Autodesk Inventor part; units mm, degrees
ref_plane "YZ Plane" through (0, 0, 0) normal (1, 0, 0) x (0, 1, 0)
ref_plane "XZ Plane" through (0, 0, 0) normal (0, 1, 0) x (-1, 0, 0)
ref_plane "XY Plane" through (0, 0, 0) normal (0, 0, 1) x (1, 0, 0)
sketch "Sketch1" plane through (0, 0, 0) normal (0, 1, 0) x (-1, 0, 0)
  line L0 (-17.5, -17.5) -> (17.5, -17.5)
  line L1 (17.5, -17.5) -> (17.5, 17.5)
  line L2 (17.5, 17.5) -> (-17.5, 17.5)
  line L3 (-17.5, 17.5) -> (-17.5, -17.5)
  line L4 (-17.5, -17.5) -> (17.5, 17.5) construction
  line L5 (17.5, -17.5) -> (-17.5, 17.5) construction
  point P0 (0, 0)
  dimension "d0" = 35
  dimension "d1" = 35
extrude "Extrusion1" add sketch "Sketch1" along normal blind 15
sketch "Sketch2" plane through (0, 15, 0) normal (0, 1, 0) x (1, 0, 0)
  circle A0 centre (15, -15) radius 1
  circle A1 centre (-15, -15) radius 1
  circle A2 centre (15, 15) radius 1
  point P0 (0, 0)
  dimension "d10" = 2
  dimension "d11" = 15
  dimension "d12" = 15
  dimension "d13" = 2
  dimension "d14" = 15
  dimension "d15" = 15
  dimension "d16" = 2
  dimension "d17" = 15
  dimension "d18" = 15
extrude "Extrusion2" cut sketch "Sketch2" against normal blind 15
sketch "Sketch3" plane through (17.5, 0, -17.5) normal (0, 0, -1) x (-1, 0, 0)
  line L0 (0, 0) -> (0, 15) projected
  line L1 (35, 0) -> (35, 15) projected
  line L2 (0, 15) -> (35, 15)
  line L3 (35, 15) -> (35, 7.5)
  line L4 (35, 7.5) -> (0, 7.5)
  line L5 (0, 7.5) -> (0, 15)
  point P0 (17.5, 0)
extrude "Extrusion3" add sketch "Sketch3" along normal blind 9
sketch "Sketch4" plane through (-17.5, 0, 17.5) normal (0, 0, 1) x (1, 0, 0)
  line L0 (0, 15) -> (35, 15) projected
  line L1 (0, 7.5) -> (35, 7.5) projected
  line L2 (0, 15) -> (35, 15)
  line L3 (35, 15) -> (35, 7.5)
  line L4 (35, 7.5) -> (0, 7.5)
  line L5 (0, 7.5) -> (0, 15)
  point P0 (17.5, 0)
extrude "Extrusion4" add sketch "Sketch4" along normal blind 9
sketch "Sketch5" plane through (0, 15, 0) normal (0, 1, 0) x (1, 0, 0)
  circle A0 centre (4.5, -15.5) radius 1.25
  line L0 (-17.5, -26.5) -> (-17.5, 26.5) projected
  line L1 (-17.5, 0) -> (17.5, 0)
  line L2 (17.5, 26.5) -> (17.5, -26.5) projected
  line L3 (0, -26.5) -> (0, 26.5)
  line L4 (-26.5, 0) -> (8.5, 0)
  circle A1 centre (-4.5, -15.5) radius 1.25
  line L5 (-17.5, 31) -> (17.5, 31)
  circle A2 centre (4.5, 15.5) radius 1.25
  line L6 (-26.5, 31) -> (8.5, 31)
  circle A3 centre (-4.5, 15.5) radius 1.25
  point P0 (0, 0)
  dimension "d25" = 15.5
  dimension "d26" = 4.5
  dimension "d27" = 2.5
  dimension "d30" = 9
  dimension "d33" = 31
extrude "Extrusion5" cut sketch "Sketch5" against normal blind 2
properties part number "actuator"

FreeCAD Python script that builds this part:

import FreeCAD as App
import Part
import Sketcher


def add_polygon(sketch, points):
    """Adds a closed chain of lines whose ends are joined by coincident constraints."""
    first, n = sketch.GeometryCount, len(points)
    for a, b in zip(points, points[1:] + points[:1]):
        sketch.addGeometry(Part.LineSegment(App.Vector(*a, 0), App.Vector(*b, 0)), False)
    for i in range(n):
        sketch.addConstraint(Sketcher.Constraint("Coincident", first + i, 2, first + (i + 1) % n, 1))

doc = App.newDocument("Part")
body = doc.addObject("PartDesign::Body", "Body")

# Sketch on XZ plane
sketch1 = body.newObject("Sketcher::SketchObject", "Sketch")
sketch1.AttachmentSupport = (doc.getObject("XZ_Plane"), [""])
sketch1.MapMode = "FlatFace"
add_polygon(sketch1, [(18, 18), (18, -18), (-18, -18), (-18, 18)])  # lines 0-3
sketch1.addConstraint([
    Sketcher.Constraint("Vertical", 0),
    Sketcher.Constraint("Horizontal", 1),
    Sketcher.Constraint("Vertical", 2),
    Sketcher.Constraint("Horizontal", 3),
    Sketcher.Constraint("Symmetric", 0, 2, 2, 2, -1, 1),
    Sketcher.Constraint("Equal", 3, 0),
    Sketcher.Constraint("DistanceX", 1, 2, 1, 1, 35.0),
])
pad1 = body.newObject("PartDesign::Pad", "Pad")
pad1.Profile = sketch1
pad1.Length = 15
pad1.Reversed = True

# Sketch on XZ plane
sketch2 = body.newObject("Sketcher::SketchObject", "Sketch001")
sketch2.AttachmentSupport = (doc.getObject("XZ_Plane"), [""])
sketch2.MapMode = "FlatFace"
sketch2.AttachmentOffset = App.Placement(App.Vector(0, 0, -15), App.Rotation())
sketch2.addGeometry([
    Part.Circle(App.Vector(15, 15, 0), App.Vector(0, 0, 1), 1),
    Part.Circle(App.Vector(-15, 15, 0), App.Vector(0, 0, 1), 1),
    Part.Circle(App.Vector(15, -15, 0), App.Vector(0, 0, 1), 1),
], False)
sketch2.addConstraint([
    Sketcher.Constraint("Equal", 0, 1),
    Sketcher.Constraint("Equal", 1, 2),
    Sketcher.Constraint("Symmetric", 1, 3, 2, 3, -1, 1),
    Sketcher.Constraint("Symmetric", 0, 3, 1, 3, -2),
    Sketcher.Constraint("Diameter", 0, 2.0),
    Sketcher.Constraint("DistanceX", -1, 1, 0, 3, 15.0),
    Sketcher.Constraint("DistanceY", -1, 1, 0, 3, 15.0),
])
pocket1 = body.newObject("PartDesign::Pocket", "Pocket")
pocket1.Profile = sketch2
pocket1.Length = 15
pocket1.Reversed = True

# Sketch on XY plane
sketch3 = body.newObject("Sketcher::SketchObject", "Sketch002")
sketch3.AttachmentSupport = (doc.getObject("XY_Plane"), [""])
sketch3.MapMode = "FlatFace"
sketch3.AttachmentOffset = App.Placement(App.Vector(0, 0, -17.5), App.Rotation())
add_polygon(sketch3, [(18, 15), (18, 8), (-18, 8), (-18, 15)])  # lines 0-3
sketch3.addConstraint([
    Sketcher.Constraint("Vertical", 0),
    Sketcher.Constraint("Horizontal", 1),
    Sketcher.Constraint("Vertical", 2),
    Sketcher.Constraint("Horizontal", 3),
    Sketcher.Constraint("DistanceX", 1, 2, 1, 1, 35.0),
    Sketcher.Constraint("DistanceY", 0, 2, 0, 1, 7.5),
    Sketcher.Constraint("DistanceY", -1, 1, 2, 2, 15.0),
    Sketcher.Constraint("DistanceX", -1, 1, 0, 2, 17.5),
])
pad2 = body.newObject("PartDesign::Pad", "Pad001")
pad2.Profile = sketch3
pad2.Length = 9
pad2.Reversed = True

# Sketch on XY plane
sketch4 = body.newObject("Sketcher::SketchObject", "Sketch003")
sketch4.AttachmentSupport = (doc.getObject("XY_Plane"), [""])
sketch4.MapMode = "FlatFace"
sketch4.AttachmentOffset = App.Placement(App.Vector(0, 0, 17.5), App.Rotation())
add_polygon(sketch4, [(18, 15), (-18, 15), (-18, 8), (18, 8)])  # lines 0-3
sketch4.addConstraint([
    Sketcher.Constraint("Horizontal", 0),
    Sketcher.Constraint("Vertical", 1),
    Sketcher.Constraint("Horizontal", 2),
    Sketcher.Constraint("Vertical", 3),
    Sketcher.Constraint("DistanceX", 0, 2, 0, 1, 35.0),
    Sketcher.Constraint("DistanceY", 1, 2, 1, 1, 7.5),
    Sketcher.Constraint("DistanceY", -1, 1, 0, 2, 15.0),
    Sketcher.Constraint("DistanceX", 0, 2, -1, 1, 17.5),
])
pad3 = body.newObject("PartDesign::Pad", "Pad002")
pad3.Profile = sketch4
pad3.Length = 9

# Sketch on XZ plane
sketch5 = body.newObject("Sketcher::SketchObject", "Sketch004")
sketch5.AttachmentSupport = (doc.getObject("XZ_Plane"), [""])
sketch5.MapMode = "FlatFace"
sketch5.AttachmentOffset = App.Placement(App.Vector(0, 0, -15), App.Rotation())
sketch5.addGeometry([
    Part.Circle(App.Vector(4.5, 15.5, 0), App.Vector(0, 0, 1), 1.2),
    Part.Circle(App.Vector(-4.5, 15.5, 0), App.Vector(0, 0, 1), 1.2),
    Part.Circle(App.Vector(4.5, -15.5, 0), App.Vector(0, 0, 1), 1.2),
    Part.Circle(App.Vector(-4.5, -15.5, 0), App.Vector(0, 0, 1), 1.2),
], False)
sketch5.addConstraint([
    Sketcher.Constraint("Equal", 0, 1),
    Sketcher.Constraint("Equal", 1, 2),
    Sketcher.Constraint("Equal", 2, 3),
    Sketcher.Constraint("Symmetric", 1, 3, 2, 3, -1, 1),
    Sketcher.Constraint("Symmetric", 0, 3, 3, 3, -1, 1),
    Sketcher.Constraint("Symmetric", 0, 3, 1, 3, -2),
    Sketcher.Constraint("Diameter", 0, 2.5),
    Sketcher.Constraint("DistanceX", 1, 3, 0, 3, 9.0),
    Sketcher.Constraint("DistanceY", 2, 3, 0, 3, 31.0),
])
pocket2 = body.newObject("PartDesign::Pocket", "Pocket001")
pocket2.Profile = sketch5
pocket2.Length = 2
pocket2.Reversed = True

doc.recompute()
